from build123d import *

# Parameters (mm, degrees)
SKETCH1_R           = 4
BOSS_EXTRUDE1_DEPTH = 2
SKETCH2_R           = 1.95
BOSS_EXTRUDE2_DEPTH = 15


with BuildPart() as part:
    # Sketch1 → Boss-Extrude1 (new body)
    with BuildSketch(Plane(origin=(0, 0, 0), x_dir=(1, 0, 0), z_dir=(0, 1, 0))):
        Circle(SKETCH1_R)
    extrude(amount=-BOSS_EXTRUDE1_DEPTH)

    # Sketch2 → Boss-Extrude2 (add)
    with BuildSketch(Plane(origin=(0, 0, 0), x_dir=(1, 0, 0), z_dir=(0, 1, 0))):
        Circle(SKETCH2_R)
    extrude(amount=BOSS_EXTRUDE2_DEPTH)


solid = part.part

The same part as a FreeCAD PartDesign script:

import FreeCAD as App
import Part
import Sketcher
from FreeCAD import Vector
Q = App.Units.Quantity

doc = App.newDocument("Part")
params = doc.addObject("Spreadsheet::Sheet", "Params")
for row, (alias, value) in enumerate([
    ("sketch1_diameter", "8 mm"),
    ("pad1_length", "2 mm"),
    ("sketch2_diameter", "3.9 mm"),
    ("pad2_length", "15 mm"),
], start=1):
    params.set(f"A{row}", alias)
    params.set(f"B{row}", "=" + value)
    params.setAlias(f"B{row}", alias)

body = doc.addObject("PartDesign::Body", "Body")

sketch1 = body.newObject("Sketcher::SketchObject", "Sketch")
sketch1.AttachmentSupport = (doc.getObject("XZ_Plane"), [""])
sketch1.MapMode = "FlatFace"
sketch1.addGeometry(Part.Circle(Vector(0, 0, 0), Vector(0, 0, 1), 4), False)
sketch1.addConstraint(Sketcher.Constraint("Coincident", 0, 3, -1, 1))
sketch1.addConstraint(Sketcher.Constraint("Diameter", 0, Q("8 mm")))
sketch1.setExpression("Constraints[1]", "Params.sketch1_diameter")
pad1 = body.newObject("PartDesign::Pad", "Pad")
pad1.Profile = sketch1
pad1.setExpression("Length", "Params.pad1_length")

sketch2 = body.newObject("Sketcher::SketchObject", "Sketch001")
sketch2.AttachmentSupport = (doc.getObject("XZ_Plane"), [""])
sketch2.MapMode = "FlatFace"
sketch2.addGeometry(Part.Circle(Vector(0, 0, 0), Vector(0, 0, 1), 1.95), False)
sketch2.addConstraint(Sketcher.Constraint("Coincident", 0, 3, -1, 1))
sketch2.addConstraint(Sketcher.Constraint("Diameter", 0, Q("3.9 mm")))
sketch2.setExpression("Constraints[1]", "Params.sketch2_diameter")
pad2 = body.newObject("PartDesign::Pad", "Pad001")
pad2.Profile = sketch2
pad2.setExpression("Length", "Params.pad2_length")
pad2.Reversed = True

doc.recompute()
